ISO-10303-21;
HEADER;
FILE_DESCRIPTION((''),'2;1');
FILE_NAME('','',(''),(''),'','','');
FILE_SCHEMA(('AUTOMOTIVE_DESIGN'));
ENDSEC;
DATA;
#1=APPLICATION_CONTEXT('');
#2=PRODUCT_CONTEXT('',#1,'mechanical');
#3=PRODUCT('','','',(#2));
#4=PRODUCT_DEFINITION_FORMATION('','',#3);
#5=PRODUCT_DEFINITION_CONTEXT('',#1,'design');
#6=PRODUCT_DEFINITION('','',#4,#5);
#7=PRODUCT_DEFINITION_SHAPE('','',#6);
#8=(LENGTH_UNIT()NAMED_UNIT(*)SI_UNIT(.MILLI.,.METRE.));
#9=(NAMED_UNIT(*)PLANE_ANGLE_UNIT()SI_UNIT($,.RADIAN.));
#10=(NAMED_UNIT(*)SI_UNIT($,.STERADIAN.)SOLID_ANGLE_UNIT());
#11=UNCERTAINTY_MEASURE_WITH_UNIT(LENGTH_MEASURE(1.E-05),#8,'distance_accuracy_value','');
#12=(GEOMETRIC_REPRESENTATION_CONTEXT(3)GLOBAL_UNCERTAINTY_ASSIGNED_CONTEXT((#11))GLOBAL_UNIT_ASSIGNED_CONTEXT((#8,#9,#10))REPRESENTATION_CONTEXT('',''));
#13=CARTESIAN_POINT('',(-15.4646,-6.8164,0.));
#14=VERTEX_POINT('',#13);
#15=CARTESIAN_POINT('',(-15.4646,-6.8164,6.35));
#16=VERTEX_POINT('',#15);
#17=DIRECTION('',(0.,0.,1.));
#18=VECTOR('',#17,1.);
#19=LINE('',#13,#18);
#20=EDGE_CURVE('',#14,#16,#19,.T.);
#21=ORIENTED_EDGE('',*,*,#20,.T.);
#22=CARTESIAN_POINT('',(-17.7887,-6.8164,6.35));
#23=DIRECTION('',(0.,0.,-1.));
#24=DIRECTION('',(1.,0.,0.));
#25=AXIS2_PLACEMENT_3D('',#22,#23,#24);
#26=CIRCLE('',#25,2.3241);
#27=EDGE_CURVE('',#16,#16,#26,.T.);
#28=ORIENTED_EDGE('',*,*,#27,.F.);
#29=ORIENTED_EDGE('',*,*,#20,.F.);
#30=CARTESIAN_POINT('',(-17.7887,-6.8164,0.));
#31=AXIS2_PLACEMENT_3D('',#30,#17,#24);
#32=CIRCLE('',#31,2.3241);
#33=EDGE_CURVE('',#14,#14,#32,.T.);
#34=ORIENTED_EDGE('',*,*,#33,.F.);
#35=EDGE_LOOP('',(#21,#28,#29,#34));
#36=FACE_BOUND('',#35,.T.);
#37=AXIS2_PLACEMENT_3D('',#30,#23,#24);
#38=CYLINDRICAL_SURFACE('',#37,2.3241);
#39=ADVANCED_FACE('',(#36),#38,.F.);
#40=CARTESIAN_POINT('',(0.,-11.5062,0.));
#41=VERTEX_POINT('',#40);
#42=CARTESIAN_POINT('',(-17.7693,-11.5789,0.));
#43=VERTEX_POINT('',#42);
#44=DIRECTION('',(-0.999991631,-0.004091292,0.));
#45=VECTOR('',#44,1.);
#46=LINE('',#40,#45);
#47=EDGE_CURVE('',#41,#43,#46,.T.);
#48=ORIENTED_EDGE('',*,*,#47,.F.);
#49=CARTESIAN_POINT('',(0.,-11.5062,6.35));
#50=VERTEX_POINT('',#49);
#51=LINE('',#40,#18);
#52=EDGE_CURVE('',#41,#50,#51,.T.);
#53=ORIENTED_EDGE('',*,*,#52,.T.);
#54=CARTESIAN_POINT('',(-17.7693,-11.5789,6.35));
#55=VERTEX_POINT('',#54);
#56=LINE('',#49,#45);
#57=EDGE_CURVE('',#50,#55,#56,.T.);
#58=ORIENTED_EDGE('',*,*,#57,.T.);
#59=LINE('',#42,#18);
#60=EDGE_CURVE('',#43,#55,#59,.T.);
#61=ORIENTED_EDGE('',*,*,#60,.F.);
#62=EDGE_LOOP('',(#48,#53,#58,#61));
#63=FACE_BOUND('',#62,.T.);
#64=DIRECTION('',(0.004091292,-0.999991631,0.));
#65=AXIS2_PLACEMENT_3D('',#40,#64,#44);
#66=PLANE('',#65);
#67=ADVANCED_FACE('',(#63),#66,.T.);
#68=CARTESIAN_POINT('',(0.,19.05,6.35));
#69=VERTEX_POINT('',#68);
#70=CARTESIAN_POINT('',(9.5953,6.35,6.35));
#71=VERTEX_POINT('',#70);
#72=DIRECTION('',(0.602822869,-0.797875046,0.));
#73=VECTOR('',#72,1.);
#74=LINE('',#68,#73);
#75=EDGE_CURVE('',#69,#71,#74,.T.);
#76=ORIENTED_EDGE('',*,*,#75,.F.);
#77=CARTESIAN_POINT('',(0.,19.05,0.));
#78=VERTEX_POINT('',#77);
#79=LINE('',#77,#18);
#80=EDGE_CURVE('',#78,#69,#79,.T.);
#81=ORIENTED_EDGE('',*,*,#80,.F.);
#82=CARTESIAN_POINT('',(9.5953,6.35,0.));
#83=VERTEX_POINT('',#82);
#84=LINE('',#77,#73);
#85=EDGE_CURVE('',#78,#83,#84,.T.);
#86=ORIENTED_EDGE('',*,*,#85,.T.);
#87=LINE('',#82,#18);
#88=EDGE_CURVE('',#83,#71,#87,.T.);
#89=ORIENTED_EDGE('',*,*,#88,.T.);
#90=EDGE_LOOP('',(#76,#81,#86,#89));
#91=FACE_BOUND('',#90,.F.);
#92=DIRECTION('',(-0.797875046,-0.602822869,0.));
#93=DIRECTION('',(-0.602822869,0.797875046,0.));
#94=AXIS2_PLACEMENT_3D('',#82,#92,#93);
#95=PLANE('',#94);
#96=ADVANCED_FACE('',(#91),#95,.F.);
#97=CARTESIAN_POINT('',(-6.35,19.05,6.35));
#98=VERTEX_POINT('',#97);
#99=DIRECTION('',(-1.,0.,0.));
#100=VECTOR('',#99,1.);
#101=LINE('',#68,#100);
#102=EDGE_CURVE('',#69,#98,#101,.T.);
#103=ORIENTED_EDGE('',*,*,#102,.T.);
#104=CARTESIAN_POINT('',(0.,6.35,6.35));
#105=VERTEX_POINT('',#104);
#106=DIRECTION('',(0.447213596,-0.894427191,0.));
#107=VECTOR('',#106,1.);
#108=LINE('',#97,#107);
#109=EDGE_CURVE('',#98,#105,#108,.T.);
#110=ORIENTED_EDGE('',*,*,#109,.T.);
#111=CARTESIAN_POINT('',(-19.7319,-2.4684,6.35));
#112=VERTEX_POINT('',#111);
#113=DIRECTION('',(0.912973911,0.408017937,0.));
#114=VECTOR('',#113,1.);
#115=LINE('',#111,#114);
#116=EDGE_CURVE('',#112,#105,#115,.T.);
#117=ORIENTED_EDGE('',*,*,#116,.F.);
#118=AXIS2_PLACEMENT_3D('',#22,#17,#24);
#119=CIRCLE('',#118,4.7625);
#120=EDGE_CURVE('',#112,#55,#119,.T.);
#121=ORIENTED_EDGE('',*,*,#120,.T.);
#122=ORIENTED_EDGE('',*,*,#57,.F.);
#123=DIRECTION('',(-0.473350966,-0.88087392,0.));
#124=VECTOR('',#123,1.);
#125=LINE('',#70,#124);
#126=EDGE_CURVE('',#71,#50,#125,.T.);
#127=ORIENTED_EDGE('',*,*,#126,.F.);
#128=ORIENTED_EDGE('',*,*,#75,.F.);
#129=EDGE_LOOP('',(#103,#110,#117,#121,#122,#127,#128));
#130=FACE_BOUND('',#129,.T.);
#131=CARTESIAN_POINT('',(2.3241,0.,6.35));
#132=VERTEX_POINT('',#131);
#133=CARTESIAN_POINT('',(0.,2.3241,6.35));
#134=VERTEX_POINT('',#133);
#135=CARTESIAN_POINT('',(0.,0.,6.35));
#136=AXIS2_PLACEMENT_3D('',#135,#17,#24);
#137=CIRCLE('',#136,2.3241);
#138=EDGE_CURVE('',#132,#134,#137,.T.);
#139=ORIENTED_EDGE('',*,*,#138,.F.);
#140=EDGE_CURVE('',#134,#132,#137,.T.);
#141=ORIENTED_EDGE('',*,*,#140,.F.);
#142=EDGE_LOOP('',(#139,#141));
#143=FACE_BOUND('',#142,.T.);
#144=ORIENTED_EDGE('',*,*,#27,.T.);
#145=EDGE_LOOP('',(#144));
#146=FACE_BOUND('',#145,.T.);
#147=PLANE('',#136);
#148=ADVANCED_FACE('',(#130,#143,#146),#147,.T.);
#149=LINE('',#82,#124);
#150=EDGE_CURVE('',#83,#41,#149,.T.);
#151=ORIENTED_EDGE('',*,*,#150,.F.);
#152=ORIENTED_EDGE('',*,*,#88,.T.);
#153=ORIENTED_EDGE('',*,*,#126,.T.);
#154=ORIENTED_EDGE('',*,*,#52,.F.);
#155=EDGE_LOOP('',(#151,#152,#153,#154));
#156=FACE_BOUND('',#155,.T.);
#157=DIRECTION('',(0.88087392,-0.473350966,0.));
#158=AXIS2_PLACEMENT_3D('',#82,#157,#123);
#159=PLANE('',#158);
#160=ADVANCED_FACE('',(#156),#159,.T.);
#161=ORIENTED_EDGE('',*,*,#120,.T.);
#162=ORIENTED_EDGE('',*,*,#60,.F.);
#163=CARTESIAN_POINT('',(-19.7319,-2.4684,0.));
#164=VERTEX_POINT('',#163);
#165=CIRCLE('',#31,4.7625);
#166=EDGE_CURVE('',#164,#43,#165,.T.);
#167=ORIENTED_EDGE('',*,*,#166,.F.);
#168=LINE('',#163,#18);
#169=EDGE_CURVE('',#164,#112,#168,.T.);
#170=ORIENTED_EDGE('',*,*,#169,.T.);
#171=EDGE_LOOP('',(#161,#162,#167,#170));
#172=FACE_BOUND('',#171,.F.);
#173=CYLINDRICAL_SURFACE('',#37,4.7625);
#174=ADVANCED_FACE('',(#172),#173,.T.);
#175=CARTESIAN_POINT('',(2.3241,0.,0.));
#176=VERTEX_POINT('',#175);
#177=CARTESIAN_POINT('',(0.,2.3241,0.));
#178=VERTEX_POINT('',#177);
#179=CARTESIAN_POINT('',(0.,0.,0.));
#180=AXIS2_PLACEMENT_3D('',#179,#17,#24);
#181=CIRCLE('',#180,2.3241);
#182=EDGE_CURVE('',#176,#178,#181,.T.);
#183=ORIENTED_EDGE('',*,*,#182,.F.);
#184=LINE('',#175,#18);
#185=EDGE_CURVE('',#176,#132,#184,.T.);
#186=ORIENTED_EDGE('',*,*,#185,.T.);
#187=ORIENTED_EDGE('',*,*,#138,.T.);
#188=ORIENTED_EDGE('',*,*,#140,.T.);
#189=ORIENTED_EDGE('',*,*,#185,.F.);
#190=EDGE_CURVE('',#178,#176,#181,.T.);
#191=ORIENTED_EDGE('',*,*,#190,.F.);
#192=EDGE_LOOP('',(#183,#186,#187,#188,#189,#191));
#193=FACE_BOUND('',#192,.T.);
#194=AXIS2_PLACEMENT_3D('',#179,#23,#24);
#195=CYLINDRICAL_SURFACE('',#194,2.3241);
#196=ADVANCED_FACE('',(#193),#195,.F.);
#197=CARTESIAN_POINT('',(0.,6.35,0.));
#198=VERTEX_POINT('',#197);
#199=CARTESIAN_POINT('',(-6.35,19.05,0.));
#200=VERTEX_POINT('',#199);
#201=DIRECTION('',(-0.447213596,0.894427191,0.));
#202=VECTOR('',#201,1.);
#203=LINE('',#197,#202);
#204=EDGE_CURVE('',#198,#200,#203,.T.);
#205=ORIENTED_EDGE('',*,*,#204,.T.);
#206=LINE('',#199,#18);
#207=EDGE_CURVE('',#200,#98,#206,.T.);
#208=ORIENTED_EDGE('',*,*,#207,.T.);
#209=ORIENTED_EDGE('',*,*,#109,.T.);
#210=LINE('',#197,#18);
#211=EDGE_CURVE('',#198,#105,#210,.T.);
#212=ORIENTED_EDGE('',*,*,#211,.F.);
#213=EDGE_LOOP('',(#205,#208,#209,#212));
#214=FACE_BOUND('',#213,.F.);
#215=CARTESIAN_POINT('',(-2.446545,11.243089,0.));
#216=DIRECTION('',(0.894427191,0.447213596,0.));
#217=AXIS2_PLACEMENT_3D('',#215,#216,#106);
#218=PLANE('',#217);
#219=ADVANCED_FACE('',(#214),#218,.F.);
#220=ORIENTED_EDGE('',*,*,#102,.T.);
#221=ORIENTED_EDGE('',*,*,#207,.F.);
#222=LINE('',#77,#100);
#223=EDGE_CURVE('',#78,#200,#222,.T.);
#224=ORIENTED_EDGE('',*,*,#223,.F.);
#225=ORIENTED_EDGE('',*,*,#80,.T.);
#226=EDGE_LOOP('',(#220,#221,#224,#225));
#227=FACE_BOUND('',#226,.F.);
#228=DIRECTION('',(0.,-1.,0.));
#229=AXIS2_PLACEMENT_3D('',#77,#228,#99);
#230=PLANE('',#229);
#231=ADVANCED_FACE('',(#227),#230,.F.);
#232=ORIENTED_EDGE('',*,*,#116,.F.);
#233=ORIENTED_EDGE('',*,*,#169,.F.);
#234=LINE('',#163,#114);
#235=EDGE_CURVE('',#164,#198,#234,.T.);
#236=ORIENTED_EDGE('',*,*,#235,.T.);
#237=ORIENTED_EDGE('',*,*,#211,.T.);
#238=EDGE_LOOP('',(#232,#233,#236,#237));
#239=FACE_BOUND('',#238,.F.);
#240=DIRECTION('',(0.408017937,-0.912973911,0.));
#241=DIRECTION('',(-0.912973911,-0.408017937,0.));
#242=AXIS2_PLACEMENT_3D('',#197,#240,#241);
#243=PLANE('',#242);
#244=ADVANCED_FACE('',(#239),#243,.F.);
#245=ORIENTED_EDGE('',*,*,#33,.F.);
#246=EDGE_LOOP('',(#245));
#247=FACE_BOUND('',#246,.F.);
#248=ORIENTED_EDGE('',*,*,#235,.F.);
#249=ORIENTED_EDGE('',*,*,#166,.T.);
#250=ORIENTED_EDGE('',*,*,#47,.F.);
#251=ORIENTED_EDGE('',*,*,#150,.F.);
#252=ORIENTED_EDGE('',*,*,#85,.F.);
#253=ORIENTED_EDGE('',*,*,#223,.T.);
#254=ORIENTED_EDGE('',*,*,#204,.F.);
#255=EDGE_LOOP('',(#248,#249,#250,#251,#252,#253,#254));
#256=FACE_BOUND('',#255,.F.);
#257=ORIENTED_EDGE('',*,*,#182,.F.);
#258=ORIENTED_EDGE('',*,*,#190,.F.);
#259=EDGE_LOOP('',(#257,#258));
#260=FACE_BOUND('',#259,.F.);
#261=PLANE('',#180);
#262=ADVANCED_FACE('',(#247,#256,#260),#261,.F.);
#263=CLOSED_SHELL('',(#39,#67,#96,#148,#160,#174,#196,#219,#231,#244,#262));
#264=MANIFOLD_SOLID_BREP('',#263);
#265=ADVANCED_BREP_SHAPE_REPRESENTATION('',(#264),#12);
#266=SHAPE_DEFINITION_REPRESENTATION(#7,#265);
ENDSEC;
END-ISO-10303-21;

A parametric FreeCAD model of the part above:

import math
import FreeCAD as App
import Part
import Sketcher
from FreeCAD import Vector
Q = App.Units.Quantity

doc = App.newDocument("Part")
params = doc.addObject("Spreadsheet::Sheet", "Params")
for row, (alias, value) in enumerate([
    ("sketch1_diameter", "0.183 in"),
    ("sketch1_radius", "0.1875 in"),
    ("sketch1_width", "0.25 in"),
    ("pad1_length", "0.25 in"),
], start=1):
    params.set(f"A{row}", alias)
    params.set(f"B{row}", "=" + value)
    params.setAlias(f"B{row}", alias)

body = doc.addObject("PartDesign::Body", "Body")

sketch1 = body.newObject("Sketcher::SketchObject", "Sketch")
sketch1.AttachmentSupport = (doc.getObject("XY_Plane"), [""])
sketch1.MapMode = "FlatFace"
sketch1.addGeometry([
    Part.LineSegment(Vector(0, -11.5, 0), Vector(9.6, 6.3, 0)),
    Part.LineSegment(Vector(9.6, 6.3, 0), Vector(0, 19.1, 0)),
    Part.LineSegment(Vector(0, 19.1, 0), Vector(-6.3, 19.1, 0)),
    Part.LineSegment(Vector(-6.3, 19.1, 0), Vector(0, 6.3, 0)),
    Part.LineSegment(Vector(0, 6.3, 0), Vector(-19.7, -2.5, 0)),
    Part.ArcOfCircle(Part.Circle(Vector(-17.8, -6.8, 0), Vector(0, 0, 1), 4.8), math.radians(114), math.radians(270)),
    Part.LineSegment(Vector(-17.8, -11.6, 0), Vector(0, -11.5, 0)),
    Part.Circle(Vector(0, 0, 0), Vector(0, 0, 1), 2.3),
    Part.Circle(Vector(-17.8, -6.8, 0), Vector(0, 0, 1), 2.3),
], False)
sketch1.addConstraint([
    Sketcher.Constraint("Coincident", 0, 2, 1, 1),
    Sketcher.Constraint("Coincident", 1, 2, 2, 1),
    Sketcher.Constraint("Coincident", 2, 2, 3, 1),
    Sketcher.Constraint("Coincident", 3, 2, 4, 1),
    Sketcher.Constraint("Tangent", 4, 2, 5, 1),
    Sketcher.Constraint("Tangent", 5, 2, 6, 1),
    Sketcher.Constraint("Coincident", 6, 2, 0, 1),
    Sketcher.Constraint("Horizontal", 2),
    Sketcher.Constraint("Coincident", 7, 3, -1, 1),
    Sketcher.Constraint("Coincident", 8, 3, 5, 3),
    Sketcher.Constraint("Equal", 7, 8),
    Sketcher.Constraint("PointOnObject", 1, 2, -2),
    Sketcher.Constraint("PointOnObject", 3, 2, -2),
    Sketcher.Constraint("PointOnObject", 6, 2, -2),
    Sketcher.Constraint("Horizontal", 0, 2, 3, 2),
    Sketcher.Constraint("Diameter", 7, Q("0.183 in")),
    Sketcher.Constraint("Radius", 5, Q("0.1875 in")),
    Sketcher.Constraint("DistanceX", 2, 2, 2, 1, Q("0.25 in")),
    Sketcher.Constraint("DistanceY", 0, 2, 1, 2, Q("0.5 in")),
    Sketcher.Constraint("DistanceY", -1, 1, 0, 2, Q("0.25 in")),
    Sketcher.Constraint("Angle", 4, Q("-155.9196 deg")),
    Sketcher.Constraint("DistanceY", 6, 2, -1, 1, Q("0.453 in")),
    Sketcher.Constraint("Distance", 4, Q("0.8509 in")),
    Sketcher.Constraint("DistanceX", 5, 3, 0, 2, Q("1.0781 in")),
])
sketch1.setExpression("Constraints[15]", "Params.sketch1_diameter")
sketch1.setExpression("Constraints[16]", "Params.sketch1_radius")
sketch1.setExpression("Constraints[17]", "Params.sketch1_width")
pad1 = body.newObject("PartDesign::Pad", "Pad")
pad1.Profile = sketch1
pad1.setExpression("Length", "Params.pad1_length")

doc.recompute()
